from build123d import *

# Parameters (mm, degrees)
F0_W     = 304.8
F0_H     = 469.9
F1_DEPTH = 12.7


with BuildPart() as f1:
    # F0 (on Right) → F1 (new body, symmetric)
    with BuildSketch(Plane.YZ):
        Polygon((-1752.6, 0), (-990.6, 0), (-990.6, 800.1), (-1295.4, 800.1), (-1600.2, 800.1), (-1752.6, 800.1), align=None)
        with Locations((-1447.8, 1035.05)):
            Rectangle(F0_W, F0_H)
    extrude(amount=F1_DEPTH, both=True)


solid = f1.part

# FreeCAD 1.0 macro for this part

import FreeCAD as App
import Part
import Sketcher
from FreeCAD import Vector
Q = App.Units.Quantity


def add_polygon(sketch, points):
    """Adds a closed chain of lines whose ends are joined by coincident constraints."""
    first, n = sketch.GeometryCount, len(points)
    for a, b in zip(points, points[1:] + points[:1]):
        sketch.addGeometry(Part.LineSegment(App.Vector(*a, 0), App.Vector(*b, 0)), False)
    for i in range(n):
        sketch.addConstraint(Sketcher.Constraint("Coincident", first + i, 2, first + (i + 1) % n, 1))

doc = App.newDocument("Part")
body = doc.addObject("PartDesign::Body", "Body")

# Sketch on YZ plane
sketch1 = body.newObject("Sketcher::SketchObject", "Sketch")
sketch1.AttachmentSupport = (doc.getObject("YZ_Plane"), [""])
sketch1.MapMode = "FlatFace"
add_polygon(sketch1, [(-1753, 0), (-991, 0), (-991, 800), (-1295, 800), (-1295, 1270), (-1600, 1270), (-1600, 800), (-1753, 800)])  # lines 0-7
sketch1.addConstraint(Sketcher.Constraint("Horizontal", 0))
sketch1.addConstraint(Sketcher.Constraint("Vertical", 1))
sketch1.addConstraint(Sketcher.Constraint("Horizontal", 2))
sketch1.addConstraint(Sketcher.Constraint("Vertical", 3))
sketch1.addConstraint(Sketcher.Constraint("Horizontal", 4))
sketch1.addConstraint(Sketcher.Constraint("Vertical", 5))
sketch1.addConstraint(Sketcher.Constraint("Horizontal", 6))
sketch1.addConstraint(Sketcher.Constraint("Vertical", 7))
sketch1.addConstraint(Sketcher.Constraint("PointOnObject", 0, 2, -1))
sketch1.addConstraint(Sketcher.Constraint("Horizontal", 2, 2, 5, 2))
sketch1.addConstraint(Sketcher.Constraint("Equal", 2, 4))
sketch1.addConstraint(Sketcher.Constraint("DistanceX", 0, 1, 0, 2, Q("30 in")))
sketch1.addConstraint(Sketcher.Constraint("DistanceX", 2, 2, 2, 1, Q("12 in")))
sketch1.addConstraint(Sketcher.Constraint("DistanceY", 1, 1, 1, 2, Q("31.5 in")))
sketch1.addConstraint(Sketcher.Constraint("DistanceY", 3, 1, 3, 2, Q("18.5 in")))
sketch1.addConstraint(Sketcher.Constraint("DistanceX", 0, 2, -1, 1, Q("39 in")))
pad1 = body.newObject("PartDesign::Pad", "Pad")
pad1.Profile = sketch1
pad1.Length = Q("1 in")
pad1.Midplane = True

doc.recompute()
